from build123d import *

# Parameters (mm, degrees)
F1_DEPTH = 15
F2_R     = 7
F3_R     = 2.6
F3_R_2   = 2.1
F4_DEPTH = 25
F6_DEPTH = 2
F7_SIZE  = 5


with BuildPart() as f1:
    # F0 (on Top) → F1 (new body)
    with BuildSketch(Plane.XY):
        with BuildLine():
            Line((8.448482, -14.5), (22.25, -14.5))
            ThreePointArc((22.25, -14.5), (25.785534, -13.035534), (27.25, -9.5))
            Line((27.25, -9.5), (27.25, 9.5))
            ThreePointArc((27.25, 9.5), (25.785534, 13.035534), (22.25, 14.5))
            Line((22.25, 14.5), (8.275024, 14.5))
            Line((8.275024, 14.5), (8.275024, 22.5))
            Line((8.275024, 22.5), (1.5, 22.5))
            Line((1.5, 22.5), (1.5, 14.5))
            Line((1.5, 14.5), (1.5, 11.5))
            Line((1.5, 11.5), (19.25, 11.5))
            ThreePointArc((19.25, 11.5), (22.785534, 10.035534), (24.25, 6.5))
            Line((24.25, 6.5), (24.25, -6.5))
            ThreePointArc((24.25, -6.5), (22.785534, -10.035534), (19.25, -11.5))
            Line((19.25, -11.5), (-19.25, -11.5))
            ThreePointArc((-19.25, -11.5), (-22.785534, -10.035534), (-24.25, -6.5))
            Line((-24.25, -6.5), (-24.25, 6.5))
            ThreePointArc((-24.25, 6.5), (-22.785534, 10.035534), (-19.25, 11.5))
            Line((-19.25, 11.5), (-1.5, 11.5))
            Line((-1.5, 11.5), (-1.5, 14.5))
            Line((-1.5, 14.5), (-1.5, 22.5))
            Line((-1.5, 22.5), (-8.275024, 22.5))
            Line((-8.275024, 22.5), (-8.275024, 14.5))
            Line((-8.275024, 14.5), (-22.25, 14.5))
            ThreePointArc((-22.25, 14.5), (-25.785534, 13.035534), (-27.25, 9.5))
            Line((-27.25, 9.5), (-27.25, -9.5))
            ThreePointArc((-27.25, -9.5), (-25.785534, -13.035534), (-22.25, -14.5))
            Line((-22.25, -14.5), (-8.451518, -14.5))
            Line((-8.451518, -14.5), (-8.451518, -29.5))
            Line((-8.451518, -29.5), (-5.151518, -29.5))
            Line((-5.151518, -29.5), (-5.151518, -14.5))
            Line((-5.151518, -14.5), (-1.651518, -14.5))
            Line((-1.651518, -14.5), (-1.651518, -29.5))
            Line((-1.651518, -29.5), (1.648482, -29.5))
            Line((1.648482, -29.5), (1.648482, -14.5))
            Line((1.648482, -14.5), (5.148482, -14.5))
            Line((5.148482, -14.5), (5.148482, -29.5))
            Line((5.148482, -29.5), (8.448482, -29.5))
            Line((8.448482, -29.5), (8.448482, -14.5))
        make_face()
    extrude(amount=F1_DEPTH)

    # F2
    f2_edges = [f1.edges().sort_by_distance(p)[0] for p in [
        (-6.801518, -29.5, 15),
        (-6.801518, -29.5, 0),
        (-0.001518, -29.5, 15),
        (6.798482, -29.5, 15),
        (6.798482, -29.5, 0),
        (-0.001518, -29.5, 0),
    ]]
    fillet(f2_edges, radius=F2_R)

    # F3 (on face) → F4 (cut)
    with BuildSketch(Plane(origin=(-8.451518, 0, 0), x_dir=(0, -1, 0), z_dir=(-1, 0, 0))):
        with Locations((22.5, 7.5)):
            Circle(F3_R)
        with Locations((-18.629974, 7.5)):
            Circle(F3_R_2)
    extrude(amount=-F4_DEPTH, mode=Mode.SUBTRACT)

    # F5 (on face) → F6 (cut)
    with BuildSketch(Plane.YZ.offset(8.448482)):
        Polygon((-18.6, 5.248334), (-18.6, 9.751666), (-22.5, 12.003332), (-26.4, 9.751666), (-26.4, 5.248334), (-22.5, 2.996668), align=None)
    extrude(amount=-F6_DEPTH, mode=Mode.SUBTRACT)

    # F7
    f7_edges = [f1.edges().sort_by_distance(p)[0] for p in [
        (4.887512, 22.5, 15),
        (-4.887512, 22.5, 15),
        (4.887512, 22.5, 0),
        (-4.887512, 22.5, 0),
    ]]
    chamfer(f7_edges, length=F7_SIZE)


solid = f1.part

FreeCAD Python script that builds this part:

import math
import FreeCAD as App
import Part
import Sketcher

V = App.Vector
Q = App.Units.Quantity


def edges_at(feature, points):
    """Names of the edges that pass closest to the given points."""
    edges = feature.Shape.Edges
    near = lambda p: min(range(len(edges)), key=lambda i: edges[i].distToShape(Part.Vertex(*p))[0])
    return sorted({f"Edge{near(p) + 1}" for p in points})

doc = App.newDocument("Part")
params = doc.addObject("Spreadsheet::Sheet", "Params")
for row, (alias, value) in enumerate([
    ("sketch1_radius", "5 mm"),
    ("sketch1_height", "19 mm"),
    ("sketch1_height2", "8 mm"),
    ("sketch1_height3", "11 mm"),
    ("sketch1_height4", "15 mm"),
    ("pad1_length", "15 mm"),
    ("fillet_radius", "7 mm"),
    ("sketch2_diameter", "5.2 mm"),
    ("sketch2_diameter2", "4.2 mm"),
    ("pocket1_length", "25 mm"),
    ("pocket2_length", "2 mm"),
    ("chamfer_size", "5 mm"),
], start=1):
    params.set(f"A{row}", alias)
    params.set(f"B{row}", "=" + value)
    params.setAlias(f"B{row}", alias)

body = doc.addObject("PartDesign::Body", "Body")

sketch1 = body.newObject("Sketcher::SketchObject", "Sketch")
sketch1.AttachmentSupport = (doc.getObject("XY_Plane"), [""])
sketch1.MapMode = "FlatFace"
sketch1.addGeometry([
    Part.LineSegment(V(8.4, -14.5, 0), V(22.2, -14.5, 0)),
    Part.ArcOfCircle(Part.Circle(V(22.3, -9.5, 0), V(0, 0, 1), 5), math.radians(-90), math.radians(0)),
    Part.LineSegment(V(27.2, -9.5, 0), V(27.2, 9.5, 0)),
    Part.ArcOfCircle(Part.Circle(V(22.3, 9.5, 0), V(0, 0, 1), 5), math.radians(0), math.radians(90)),
    Part.LineSegment(V(22.2, 14.5, 0), V(8.3, 14.5, 0)),
    Part.LineSegment(V(8.3, 14.5, 0), V(8.3, 22.5, 0)),
    Part.LineSegment(V(8.3, 22.5, 0), V(1.5, 22.5, 0)),
    Part.LineSegment(V(1.5, 22.5, 0), V(1.5, 11.5, 0)),
    Part.LineSegment(V(1.5, 11.5, 0), V(19.2, 11.5, 0)),
    Part.ArcOfCircle(Part.Circle(V(19.3, 6.5, 0), V(0, 0, 1), 5), math.radians(0), math.radians(90)),
    Part.LineSegment(V(24.2, 6.5, 0), V(24.2, -6.5, 0)),
    Part.ArcOfCircle(Part.Circle(V(19.3, -6.5, 0), V(0, 0, 1), 5), math.radians(-90), math.radians(0)),
    Part.LineSegment(V(19.2, -11.5, 0), V(-19.2, -11.5, 0)),
    Part.ArcOfCircle(Part.Circle(V(-19.3, -6.5, 0), V(0, 0, 1), 5), math.radians(180), math.radians(270)),
    Part.LineSegment(V(-24.2, -6.5, 0), V(-24.2, 6.5, 0)),
    Part.ArcOfCircle(Part.Circle(V(-19.3, 6.5, 0), V(0, 0, 1), 5), math.radians(90), math.radians(180)),
    Part.LineSegment(V(-19.2, 11.5, 0), V(-1.5, 11.5, 0)),
    Part.LineSegment(V(-1.5, 11.5, 0), V(-1.5, 22.5, 0)),
    Part.LineSegment(V(-1.5, 22.5, 0), V(-8.3, 22.5, 0)),
    Part.LineSegment(V(-8.3, 22.5, 0), V(-8.3, 14.5, 0)),
    Part.LineSegment(V(-8.3, 14.5, 0), V(-22.2, 14.5, 0)),
    Part.ArcOfCircle(Part.Circle(V(-22.3, 9.5, 0), V(0, 0, 1), 5), math.radians(90), math.radians(180)),
    Part.LineSegment(V(-27.2, 9.5, 0), V(-27.2, -9.5, 0)),
    Part.ArcOfCircle(Part.Circle(V(-22.3, -9.5, 0), V(0, 0, 1), 5), math.radians(180), math.radians(270)),
    Part.LineSegment(V(-22.2, -14.5, 0), V(-8.5, -14.5, 0)),
    Part.LineSegment(V(-8.5, -14.5, 0), V(-8.5, -29.5, 0)),
    Part.LineSegment(V(-8.5, -29.5, 0), V(-5.2, -29.5, 0)),
    Part.LineSegment(V(-5.2, -29.5, 0), V(-5.2, -14.5, 0)),
    Part.LineSegment(V(-5.2, -14.5, 0), V(-1.7, -14.5, 0)),
    Part.LineSegment(V(-1.7, -14.5, 0), V(-1.7, -29.5, 0)),
    Part.LineSegment(V(-1.7, -29.5, 0), V(1.6, -29.5, 0)),
    Part.LineSegment(V(1.6, -29.5, 0), V(1.6, -14.5, 0)),
    Part.LineSegment(V(1.6, -14.5, 0), V(5.1, -14.5, 0)),
    Part.LineSegment(V(5.1, -14.5, 0), V(5.1, -29.5, 0)),
    Part.LineSegment(V(5.1, -29.5, 0), V(8.4, -29.5, 0)),
    Part.LineSegment(V(8.4, -29.5, 0), V(8.4, -14.5, 0)),
], False)
sketch1.addConstraint([
    Sketcher.Constraint("Tangent", 0, 2, 1, 1),
    Sketcher.Constraint("Tangent", 1, 2, 2, 1),
    Sketcher.Constraint("Tangent", 2, 2, 3, 1),
    Sketcher.Constraint("Tangent", 3, 2, 4, 1),
    Sketcher.Constraint("Coincident", 4, 2, 5, 1),
    Sketcher.Constraint("Coincident", 5, 2, 6, 1),
    Sketcher.Constraint("Coincident", 6, 2, 7, 1),
    Sketcher.Constraint("Coincident", 7, 2, 8, 1),
    Sketcher.Constraint("Tangent", 8, 2, 9, 2),
    Sketcher.Constraint("Tangent", 9, 1, 10, 1),
    Sketcher.Constraint("Tangent", 10, 2, 11, 2),
    Sketcher.Constraint("Tangent", 11, 1, 12, 1),
    Sketcher.Constraint("Tangent", 12, 2, 13, 2),
    Sketcher.Constraint("Tangent", 13, 1, 14, 1),
    Sketcher.Constraint("Tangent", 14, 2, 15, 2),
    Sketcher.Constraint("Tangent", 15, 1, 16, 1),
    Sketcher.Constraint("Coincident", 16, 2, 17, 1),
    Sketcher.Constraint("Coincident", 17, 2, 18, 1),
    Sketcher.Constraint("Coincident", 18, 2, 19, 1),
    Sketcher.Constraint("Coincident", 19, 2, 20, 1),
    Sketcher.Constraint("Tangent", 20, 2, 21, 1),
    Sketcher.Constraint("Tangent", 21, 2, 22, 1),
    Sketcher.Constraint("Tangent", 22, 2, 23, 1),
    Sketcher.Constraint("Tangent", 23, 2, 24, 1),
    Sketcher.Constraint("Coincident", 24, 2, 25, 1),
    Sketcher.Constraint("Coincident", 25, 2, 26, 1),
    Sketcher.Constraint("Coincident", 26, 2, 27, 1),
    Sketcher.Constraint("Coincident", 27, 2, 28, 1),
    Sketcher.Constraint("Coincident", 28, 2, 29, 1),
    Sketcher.Constraint("Coincident", 29, 2, 30, 1),
    Sketcher.Constraint("Coincident", 30, 2, 31, 1),
    Sketcher.Constraint("Coincident", 31, 2, 32, 1),
    Sketcher.Constraint("Coincident", 32, 2, 33, 1),
    Sketcher.Constraint("Coincident", 33, 2, 34, 1),
    Sketcher.Constraint("Coincident", 34, 2, 35, 1),
    Sketcher.Constraint("Coincident", 35, 2, 0, 1),
    Sketcher.Constraint("Horizontal", 0),
    Sketcher.Constraint("Vertical", 2),
    Sketcher.Constraint("Horizontal", 4),
    Sketcher.Constraint("Vertical", 5),
    Sketcher.Constraint("Horizontal", 6),
    Sketcher.Constraint("Vertical", 7),
    Sketcher.Constraint("Horizontal", 8),
    Sketcher.Constraint("Vertical", 10),
    Sketcher.Constraint("Horizontal", 12),
    Sketcher.Constraint("Vertical", 14),
    Sketcher.Constraint("Horizontal", 16),
    Sketcher.Constraint("Vertical", 17),
    Sketcher.Constraint("Horizontal", 18),
    Sketcher.Constraint("Vertical", 19),
    Sketcher.Constraint("Horizontal", 20),
    Sketcher.Constraint("Vertical", 22),
    Sketcher.Constraint("Horizontal", 24),
    Sketcher.Constraint("Vertical", 25),
    Sketcher.Constraint("Horizontal", 26),
    Sketcher.Constraint("Vertical", 27),
    Sketcher.Constraint("Horizontal", 28),
    Sketcher.Constraint("Vertical", 29),
    Sketcher.Constraint("Horizontal", 30),
    Sketcher.Constraint("Vertical", 31),
    Sketcher.Constraint("Horizontal", 32),
    Sketcher.Constraint("Vertical", 33),
    Sketcher.Constraint("Horizontal", 34),
    Sketcher.Constraint("Vertical", 35),
    Sketcher.Constraint("Equal", 1, 3),
    Sketcher.Constraint("Equal", 3, 9),
    Sketcher.Constraint("Equal", 9, 11),
    Sketcher.Constraint("Equal", 11, 13),
    Sketcher.Constraint("Equal", 13, 15),
    Sketcher.Constraint("Equal", 15, 21),
    Sketcher.Constraint("Equal", 21, 23),
    Sketcher.Constraint("Symmetric", 9, 3, 13, 3, -1, 1),
    Sketcher.Constraint("Symmetric", 1, 3, 21, 3, -1, 1),
    Sketcher.Constraint("Symmetric", 7, 2, 16, 2, -2),
    Sketcher.Constraint("Symmetric", 5, 2, 18, 2, -2),
    Sketcher.Constraint("Horizontal", 3, 3, 21, 3),
    Sketcher.Constraint("Horizontal", 1, 3, 23, 3),
    Sketcher.Constraint("Horizontal", 24, 2, 27, 2),
    Sketcher.Constraint("Horizontal", 26, 2, 29, 2),
    Sketcher.Constraint("Horizontal", 28, 2, 31, 2),
    Sketcher.Constraint("Horizontal", 30, 2, 33, 2),
    Sketcher.Constraint("Equal", 26, 30),
    Sketcher.Constraint("Equal", 28, 32),
    Sketcher.Constraint("Equal", 30, 34),
    Sketcher.Constraint("Radius", 1, Q("5 mm")),
    Sketcher.Constraint("DistanceY", 2, 1, 2, 2, Q("19 mm")),
    Sketcher.Constraint("DistanceY", 5, 1, 5, 2, Q("8 mm")),
    Sketcher.Constraint("DistanceY", 7, 2, 7, 1, Q("11 mm")),
    Sketcher.Constraint("DistanceY", 25, 2, 25, 1, Q("15 mm")),
    Sketcher.Constraint("DistanceX", 12, 2, 12, 1, Q("38.5 mm")),
    Sketcher.Constraint("DistanceX", 26, 1, 26, 2, Q("3.3 mm")),
    Sketcher.Constraint("DistanceX", 28, 1, 28, 2, Q("3.5 mm")),
    Sketcher.Constraint("DistanceX", 9, 3, 3, 3, Q("3 mm")),
    Sketcher.Constraint("DistanceX", 16, 2, 7, 2, Q("3 mm")),
    Sketcher.Constraint("DistanceX", 0, 1, 0, 2, Q("13.801518 mm")),
    Sketcher.Constraint("DistanceX", 4, 2, 4, 1, Q("13.974976 mm")),
])
sketch1.setExpression("Constraints[84]", "Params.sketch1_radius")
sketch1.setExpression("Constraints[85]", "Params.sketch1_height")
sketch1.setExpression("Constraints[86]", "Params.sketch1_height2")
sketch1.setExpression("Constraints[87]", "Params.sketch1_height3")
sketch1.setExpression("Constraints[88]", "Params.sketch1_height4")
pad1 = body.newObject("PartDesign::Pad", "Pad")
pad1.Profile = sketch1
pad1.setExpression("Length", "Params.pad1_length")
doc.recompute()

fillet = body.newObject("PartDesign::Fillet", "Fillet")
fillet.Base = (pad1, edges_at(pad1, [
    (-6.802, -29.5, 15),
    (-6.802, -29.5, 0),
    (-0.002, -29.5, 15),
    (6.798, -29.5, 15),
    (6.798, -29.5, 0),
    (-0.002, -29.5, 0),
]))
fillet.setExpression("Radius", "Params.fillet_radius")

sketch2 = body.newObject("Sketcher::SketchObject", "Sketch001")
sketch2.AttachmentSupport = (doc.getObject("YZ_Plane"), [""])
sketch2.MapMode = "FlatFace"
sketch2.AttachmentOffset = App.Placement(V(0, 0, -8.451518), App.Rotation())
sketch2.addGeometry([
    Part.Circle(V(-22.5, 7.5, 0), V(0, 0, 1), 2.6),
    Part.Circle(V(18.6, 7.5, 0), V(0, 0, 1), 2.1),
], False)
sketch2.addConstraint([
    Sketcher.Constraint("Horizontal", 0, 3, 1, 3),
    Sketcher.Constraint("Diameter", 0, Q("5.2 mm")),
    Sketcher.Constraint("Diameter", 1, Q("4.2 mm")),
    Sketcher.Constraint("DistanceX", 0, 3, -1, 1, Q("22.5 mm")),
    Sketcher.Constraint("DistanceY", -1, 1, 0, 3, Q("7.5 mm")),
    Sketcher.Constraint("DistanceX", -1, 1, 1, 3, Q("18.629974 mm")),
])
sketch2.setExpression("Constraints[1]", "Params.sketch2_diameter")
sketch2.setExpression("Constraints[2]", "Params.sketch2_diameter2")
pocket1 = body.newObject("PartDesign::Pocket", "Pocket")
pocket1.Profile = sketch2
pocket1.setExpression("Length", "Params.pocket1_length")
pocket1.Reversed = True

sketch3 = body.newObject("Sketcher::SketchObject", "Sketch002")
sketch3.AttachmentSupport = (doc.getObject("YZ_Plane"), [""])
sketch3.MapMode = "FlatFace"
sketch3.AttachmentOffset = App.Placement(V(0, 0, 8.448482), App.Rotation())
sketch3.addGeometry([
    Part.LineSegment(V(-18.6, 5.2, 0), V(-18.6, 9.8, 0)),
    Part.LineSegment(V(-18.6, 9.8, 0), V(-22.5, 12, 0)),
    Part.LineSegment(V(-22.5, 12, 0), V(-26.4, 9.8, 0)),
    Part.LineSegment(V(-26.4, 9.8, 0), V(-26.4, 5.2, 0)),
    Part.LineSegment(V(-26.4, 5.2, 0), V(-22.5, 3, 0)),
    Part.LineSegment(V(-22.5, 3, 0), V(-18.6, 5.2, 0)),
], False)
sketch3.addConstraint([
    Sketcher.Constraint("Coincident", 0, 2, 1, 1),
    Sketcher.Constraint("Coincident", 1, 2, 2, 1),
    Sketcher.Constraint("Coincident", 2, 2, 3, 1),
    Sketcher.Constraint("Coincident", 3, 2, 4, 1),
    Sketcher.Constraint("Coincident", 4, 2, 5, 1),
    Sketcher.Constraint("Coincident", 5, 2, 0, 1),
    Sketcher.Constraint("Vertical", 0),
    Sketcher.Constraint("Vertical", 3),
    Sketcher.Constraint("Parallel", 1, 4),
    Sketcher.Constraint("Parallel", 2, 5),
    Sketcher.Constraint("Horizontal", 0, 2, 2, 2),
    Sketcher.Constraint("Horizontal", 3, 2, 5, 2),
    Sketcher.Constraint("Vertical", 1, 2, 4, 2),
    Sketcher.Constraint("Angle", 1, Q("150.000001 deg")),
    Sketcher.Constraint("DistanceX", 0, 2, -1, 1, Q("18.6 mm")),
    Sketcher.Constraint("DistanceX", 1, 2, -1, 1, Q("22.5 mm")),
    Sketcher.Constraint("DistanceY", 3, 2, 1, 2, Q("6.754998 mm")),
    Sketcher.Constraint("DistanceY", -1, 1, 4, 2, Q("2.996668 mm")),
])
pocket2 = body.newObject("PartDesign::Pocket", "Pocket001")
pocket2.Profile = sketch3
pocket2.setExpression("Length", "Params.pocket2_length")
doc.recompute()

chamfer = body.newObject("PartDesign::Chamfer", "Chamfer")
chamfer.Base = (pocket2, edges_at(pocket2, [
    (4.888, 22.5, 15),
    (-4.888, 22.5, 15),
    (4.888, 22.5, 0),
    (-4.888, 22.5, 0),
]))
chamfer.setExpression("Size", "Params.chamfer_size")

doc.recompute()
